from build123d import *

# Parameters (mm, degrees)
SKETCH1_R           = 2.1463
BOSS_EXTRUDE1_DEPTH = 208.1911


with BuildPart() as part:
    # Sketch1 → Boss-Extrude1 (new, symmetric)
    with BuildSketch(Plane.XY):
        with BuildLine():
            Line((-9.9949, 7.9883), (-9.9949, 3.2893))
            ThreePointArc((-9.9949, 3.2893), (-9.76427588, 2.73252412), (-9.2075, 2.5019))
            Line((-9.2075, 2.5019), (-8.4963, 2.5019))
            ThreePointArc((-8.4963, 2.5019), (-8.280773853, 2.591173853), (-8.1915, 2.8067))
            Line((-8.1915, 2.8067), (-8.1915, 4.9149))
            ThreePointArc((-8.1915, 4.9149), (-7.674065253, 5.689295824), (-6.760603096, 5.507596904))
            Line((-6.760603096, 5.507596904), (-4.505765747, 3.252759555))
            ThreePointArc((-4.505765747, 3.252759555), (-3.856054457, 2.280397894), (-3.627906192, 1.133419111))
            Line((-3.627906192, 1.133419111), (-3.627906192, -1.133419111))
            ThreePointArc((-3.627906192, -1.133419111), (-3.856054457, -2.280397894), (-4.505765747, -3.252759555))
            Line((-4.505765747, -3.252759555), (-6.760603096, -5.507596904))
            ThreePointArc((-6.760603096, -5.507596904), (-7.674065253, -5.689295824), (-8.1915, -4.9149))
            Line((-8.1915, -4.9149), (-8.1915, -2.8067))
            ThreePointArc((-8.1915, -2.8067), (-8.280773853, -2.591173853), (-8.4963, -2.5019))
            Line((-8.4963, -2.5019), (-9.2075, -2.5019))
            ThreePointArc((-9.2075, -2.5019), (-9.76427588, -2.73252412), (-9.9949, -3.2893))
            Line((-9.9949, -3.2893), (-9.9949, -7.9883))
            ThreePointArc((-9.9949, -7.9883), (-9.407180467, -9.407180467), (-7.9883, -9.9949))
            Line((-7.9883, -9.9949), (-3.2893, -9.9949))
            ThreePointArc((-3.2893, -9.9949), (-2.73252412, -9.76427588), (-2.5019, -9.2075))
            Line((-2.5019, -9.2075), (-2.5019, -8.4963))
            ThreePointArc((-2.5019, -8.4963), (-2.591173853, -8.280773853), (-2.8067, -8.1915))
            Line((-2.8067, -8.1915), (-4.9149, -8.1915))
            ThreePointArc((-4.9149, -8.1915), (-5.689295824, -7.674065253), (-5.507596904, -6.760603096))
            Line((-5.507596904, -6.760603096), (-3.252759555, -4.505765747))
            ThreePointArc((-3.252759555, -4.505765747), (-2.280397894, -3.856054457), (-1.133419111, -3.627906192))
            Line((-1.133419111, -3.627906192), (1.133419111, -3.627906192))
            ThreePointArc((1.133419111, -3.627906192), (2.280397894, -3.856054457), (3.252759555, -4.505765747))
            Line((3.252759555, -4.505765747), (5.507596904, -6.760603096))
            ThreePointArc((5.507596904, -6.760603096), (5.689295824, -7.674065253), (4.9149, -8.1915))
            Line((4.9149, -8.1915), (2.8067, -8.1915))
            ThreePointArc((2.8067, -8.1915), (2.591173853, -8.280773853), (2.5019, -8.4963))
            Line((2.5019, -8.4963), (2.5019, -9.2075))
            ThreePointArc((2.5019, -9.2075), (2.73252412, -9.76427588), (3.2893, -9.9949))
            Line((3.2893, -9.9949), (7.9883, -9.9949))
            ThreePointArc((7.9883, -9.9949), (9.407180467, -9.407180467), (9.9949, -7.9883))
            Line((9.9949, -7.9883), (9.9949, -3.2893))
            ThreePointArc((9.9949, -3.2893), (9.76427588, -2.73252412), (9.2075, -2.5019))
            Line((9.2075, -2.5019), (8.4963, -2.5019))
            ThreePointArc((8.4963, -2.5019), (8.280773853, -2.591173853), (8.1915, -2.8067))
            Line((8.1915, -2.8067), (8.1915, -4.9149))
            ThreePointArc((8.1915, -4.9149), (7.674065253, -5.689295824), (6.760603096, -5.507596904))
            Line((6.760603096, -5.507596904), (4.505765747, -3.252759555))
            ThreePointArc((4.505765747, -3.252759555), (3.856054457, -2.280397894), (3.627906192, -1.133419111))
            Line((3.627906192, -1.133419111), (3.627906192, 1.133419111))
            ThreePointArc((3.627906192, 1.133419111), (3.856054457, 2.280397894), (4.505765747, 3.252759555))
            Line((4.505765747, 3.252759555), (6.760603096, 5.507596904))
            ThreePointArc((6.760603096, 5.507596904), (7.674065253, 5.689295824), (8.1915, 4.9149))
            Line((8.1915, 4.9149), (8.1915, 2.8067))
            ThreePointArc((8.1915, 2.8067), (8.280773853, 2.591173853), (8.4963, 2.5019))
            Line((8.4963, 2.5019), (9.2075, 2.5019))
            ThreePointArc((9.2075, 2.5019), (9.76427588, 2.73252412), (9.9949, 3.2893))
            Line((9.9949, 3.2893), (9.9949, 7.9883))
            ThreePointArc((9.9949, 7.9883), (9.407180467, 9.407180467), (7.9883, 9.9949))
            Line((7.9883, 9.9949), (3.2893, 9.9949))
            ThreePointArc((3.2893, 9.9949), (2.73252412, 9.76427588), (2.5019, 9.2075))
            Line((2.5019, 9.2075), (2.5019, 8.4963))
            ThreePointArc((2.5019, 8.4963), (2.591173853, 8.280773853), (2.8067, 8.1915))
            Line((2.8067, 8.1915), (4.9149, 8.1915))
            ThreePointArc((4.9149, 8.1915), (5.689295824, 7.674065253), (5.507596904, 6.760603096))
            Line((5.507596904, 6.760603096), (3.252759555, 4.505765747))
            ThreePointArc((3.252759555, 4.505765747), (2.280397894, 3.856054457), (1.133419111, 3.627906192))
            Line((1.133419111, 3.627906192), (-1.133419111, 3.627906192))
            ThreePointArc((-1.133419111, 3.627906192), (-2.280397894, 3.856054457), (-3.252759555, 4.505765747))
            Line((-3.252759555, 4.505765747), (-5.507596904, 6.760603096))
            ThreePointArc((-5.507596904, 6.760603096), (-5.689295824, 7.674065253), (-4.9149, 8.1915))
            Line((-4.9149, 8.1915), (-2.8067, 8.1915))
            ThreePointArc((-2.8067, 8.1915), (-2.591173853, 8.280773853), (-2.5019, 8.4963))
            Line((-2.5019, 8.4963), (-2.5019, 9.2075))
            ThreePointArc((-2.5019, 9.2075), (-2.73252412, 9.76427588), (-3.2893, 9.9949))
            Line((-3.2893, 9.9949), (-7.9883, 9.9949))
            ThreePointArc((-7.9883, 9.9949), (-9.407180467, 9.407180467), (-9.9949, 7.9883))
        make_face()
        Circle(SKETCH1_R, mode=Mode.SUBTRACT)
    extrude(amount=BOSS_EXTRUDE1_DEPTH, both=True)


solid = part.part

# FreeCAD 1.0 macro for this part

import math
import FreeCAD as App
import Part
import Sketcher
from FreeCAD import Vector
Q = App.Units.Quantity

doc = App.newDocument("Part")
body = doc.addObject("PartDesign::Body", "Body")

sketch1 = body.newObject("Sketcher::SketchObject", "Sketch")
sketch1.AttachmentSupport = (doc.getObject("XY_Plane"), [""])
sketch1.MapMode = "FlatFace"
sketch1.addGeometry(Part.LineSegment(Vector(-9.99, 7.99, 0), Vector(-9.99, 3.29, 0)), False)
sketch1.addGeometry(Part.ArcOfCircle(Part.Circle(Vector(-9.21, 3.29, 0), Vector(0, 0, 1), 0.79), math.radians(180), math.radians(270)), False)
sketch1.addGeometry(Part.LineSegment(Vector(-9.21, 2.5, 0), Vector(-8.5, 2.5, 0)), False)
sketch1.addGeometry(Part.ArcOfCircle(Part.Circle(Vector(-8.5, 2.81, 0), Vector(0, 0, 1), 0.3), math.radians(-90), math.radians(0)), False)
sketch1.addGeometry(Part.LineSegment(Vector(-8.19, 2.81, 0), Vector(-8.19, 4.91, 0)), False)
sketch1.addGeometry(Part.ArcOfCircle(Part.Circle(Vector(-7.35, 4.91, 0), Vector(0, 0, 1), 0.84), math.radians(45), math.radians(180)), False)
sketch1.addGeometry(Part.LineSegment(Vector(-6.76, 5.51, 0), Vector(-4.51, 3.25, 0)), False)
sketch1.addGeometry(Part.ArcOfCircle(Part.Circle(Vector(-6.63, 1.13, 0), Vector(0, 0, 1), 3), math.radians(0), math.radians(45)), False)
sketch1.addGeometry(Part.LineSegment(Vector(-3.63, 1.13, 0), Vector(-3.63, -1.13, 0)), False)
sketch1.addGeometry(Part.ArcOfCircle(Part.Circle(Vector(-6.63, -1.13, 0), Vector(0, 0, 1), 3), math.radians(-45), math.radians(0)), False)
sketch1.addGeometry(Part.LineSegment(Vector(-4.51, -3.25, 0), Vector(-6.76, -5.51, 0)), False)
sketch1.addGeometry(Part.ArcOfCircle(Part.Circle(Vector(-7.35, -4.91, 0), Vector(0, 0, 1), 0.84), math.radians(180), math.radians(315)), False)
sketch1.addGeometry(Part.LineSegment(Vector(-8.19, -4.91, 0), Vector(-8.19, -2.81, 0)), False)
sketch1.addGeometry(Part.ArcOfCircle(Part.Circle(Vector(-8.5, -2.81, 0), Vector(0, 0, 1), 0.3), math.radians(0), math.radians(90)), False)
sketch1.addGeometry(Part.LineSegment(Vector(-8.5, -2.5, 0), Vector(-9.21, -2.5, 0)), False)
sketch1.addGeometry(Part.ArcOfCircle(Part.Circle(Vector(-9.21, -3.29, 0), Vector(0, 0, 1), 0.79), math.radians(90), math.radians(180)), False)
sketch1.addGeometry(Part.LineSegment(Vector(-9.99, -3.29, 0), Vector(-9.99, -7.99, 0)), False)
sketch1.addGeometry(Part.ArcOfCircle(Part.Circle(Vector(-7.99, -7.99, 0), Vector(0, 0, 1), 2.01), math.radians(180), math.radians(270)), False)
sketch1.addGeometry(Part.LineSegment(Vector(-7.99, -9.99, 0), Vector(-3.29, -9.99, 0)), False)
sketch1.addGeometry(Part.ArcOfCircle(Part.Circle(Vector(-3.29, -9.21, 0), Vector(0, 0, 1), 0.79), math.radians(-90), math.radians(0)), False)
sketch1.addGeometry(Part.LineSegment(Vector(-2.5, -9.21, 0), Vector(-2.5, -8.5, 0)), False)
sketch1.addGeometry(Part.ArcOfCircle(Part.Circle(Vector(-2.81, -8.5, 0), Vector(0, 0, 1), 0.3), math.radians(0), math.radians(90)), False)
sketch1.addGeometry(Part.LineSegment(Vector(-2.81, -8.19, 0), Vector(-4.91, -8.19, 0)), False)
sketch1.addGeometry(Part.ArcOfCircle(Part.Circle(Vector(-4.91, -7.35, 0), Vector(0, 0, 1), 0.84), math.radians(135), math.radians(270)), False)
sketch1.addGeometry(Part.LineSegment(Vector(-5.51, -6.76, 0), Vector(-3.25, -4.51, 0)), False)
sketch1.addGeometry(Part.ArcOfCircle(Part.Circle(Vector(-1.13, -6.63, 0), Vector(0, 0, 1), 3), math.radians(90), math.radians(135)), False)
sketch1.addGeometry(Part.LineSegment(Vector(-1.13, -3.63, 0), Vector(1.13, -3.63, 0)), False)
sketch1.addGeometry(Part.ArcOfCircle(Part.Circle(Vector(1.13, -6.63, 0), Vector(0, 0, 1), 3), math.radians(45), math.radians(90)), False)
sketch1.addGeometry(Part.LineSegment(Vector(3.25, -4.51, 0), Vector(5.51, -6.76, 0)), False)
sketch1.addGeometry(Part.ArcOfCircle(Part.Circle(Vector(4.91, -7.35, 0), Vector(0, 0, 1), 0.84), math.radians(-90), math.radians(45)), False)
sketch1.addGeometry(Part.LineSegment(Vector(4.91, -8.19, 0), Vector(2.81, -8.19, 0)), False)
sketch1.addGeometry(Part.ArcOfCircle(Part.Circle(Vector(2.81, -8.5, 0), Vector(0, 0, 1), 0.3), math.radians(90), math.radians(180)), False)
sketch1.addGeometry(Part.LineSegment(Vector(2.5, -8.5, 0), Vector(2.5, -9.21, 0)), False)
sketch1.addGeometry(Part.ArcOfCircle(Part.Circle(Vector(3.29, -9.21, 0), Vector(0, 0, 1), 0.79), math.radians(180), math.radians(270)), False)
sketch1.addGeometry(Part.LineSegment(Vector(3.29, -9.99, 0), Vector(7.99, -9.99, 0)), False)
sketch1.addGeometry(Part.ArcOfCircle(Part.Circle(Vector(7.99, -7.99, 0), Vector(0, 0, 1), 2.01), math.radians(-90), math.radians(0)), False)
sketch1.addGeometry(Part.LineSegment(Vector(9.99, -7.99, 0), Vector(9.99, -3.29, 0)), False)
sketch1.addGeometry(Part.ArcOfCircle(Part.Circle(Vector(9.21, -3.29, 0), Vector(0, 0, 1), 0.79), math.radians(0), math.radians(90)), False)
sketch1.addGeometry(Part.LineSegment(Vector(9.21, -2.5, 0), Vector(8.5, -2.5, 0)), False)
sketch1.addGeometry(Part.ArcOfCircle(Part.Circle(Vector(8.5, -2.81, 0), Vector(0, 0, 1), 0.3), math.radians(90), math.radians(180)), False)
sketch1.addGeometry(Part.LineSegment(Vector(8.19, -2.81, 0), Vector(8.19, -4.91, 0)), False)
sketch1.addGeometry(Part.ArcOfCircle(Part.Circle(Vector(7.35, -4.91, 0), Vector(0, 0, 1), 0.84), math.radians(-135), math.radians(0)), False)
sketch1.addGeometry(Part.LineSegment(Vector(6.76, -5.51, 0), Vector(4.51, -3.25, 0)), False)
sketch1.addGeometry(Part.ArcOfCircle(Part.Circle(Vector(6.63, -1.13, 0), Vector(0, 0, 1), 3), math.radians(180), math.radians(225)), False)
sketch1.addGeometry(Part.LineSegment(Vector(3.63, -1.13, 0), Vector(3.63, 1.13, 0)), False)
sketch1.addGeometry(Part.ArcOfCircle(Part.Circle(Vector(6.63, 1.13, 0), Vector(0, 0, 1), 3), math.radians(135), math.radians(180)), False)
sketch1.addGeometry(Part.LineSegment(Vector(4.51, 3.25, 0), Vector(6.76, 5.51, 0)), False)
sketch1.addGeometry(Part.ArcOfCircle(Part.Circle(Vector(7.35, 4.91, 0), Vector(0, 0, 1), 0.84), math.radians(0), math.radians(135)), False)
sketch1.addGeometry(Part.LineSegment(Vector(8.19, 4.91, 0), Vector(8.19, 2.81, 0)), False)
sketch1.addGeometry(Part.ArcOfCircle(Part.Circle(Vector(8.5, 2.81, 0), Vector(0, 0, 1), 0.3), math.radians(180), math.radians(270)), False)
sketch1.addGeometry(Part.LineSegment(Vector(8.5, 2.5, 0), Vector(9.21, 2.5, 0)), False)
sketch1.addGeometry(Part.ArcOfCircle(Part.Circle(Vector(9.21, 3.29, 0), Vector(0, 0, 1), 0.79), math.radians(-90), math.radians(0)), False)
sketch1.addGeometry(Part.LineSegment(Vector(9.99, 3.29, 0), Vector(9.99, 7.99, 0)), False)
sketch1.addGeometry(Part.ArcOfCircle(Part.Circle(Vector(7.99, 7.99, 0), Vector(0, 0, 1), 2.01), math.radians(0), math.radians(90)), False)
sketch1.addGeometry(Part.LineSegment(Vector(7.99, 9.99, 0), Vector(3.29, 9.99, 0)), False)
sketch1.addGeometry(Part.ArcOfCircle(Part.Circle(Vector(3.29, 9.21, 0), Vector(0, 0, 1), 0.79), math.radians(90), math.radians(180)), False)
sketch1.addGeometry(Part.LineSegment(Vector(2.5, 9.21, 0), Vector(2.5, 8.5, 0)), False)
sketch1.addGeometry(Part.ArcOfCircle(Part.Circle(Vector(2.81, 8.5, 0), Vector(0, 0, 1), 0.3), math.radians(180), math.radians(270)), False)
sketch1.addGeometry(Part.LineSegment(Vector(2.81, 8.19, 0), Vector(4.91, 8.19, 0)), False)
sketch1.addGeometry(Part.ArcOfCircle(Part.Circle(Vector(4.91, 7.35, 0), Vector(0, 0, 1), 0.84), math.radians(-45), math.radians(90)), False)
sketch1.addGeometry(Part.LineSegment(Vector(5.51, 6.76, 0), Vector(3.25, 4.51, 0)), False)
sketch1.addGeometry(Part.ArcOfCircle(Part.Circle(Vector(1.13, 6.63, 0), Vector(0, 0, 1), 3), math.radians(-90), math.radians(-45)), False)
sketch1.addGeometry(Part.LineSegment(Vector(1.13, 3.63, 0), Vector(-1.13, 3.63, 0)), False)
sketch1.addGeometry(Part.ArcOfCircle(Part.Circle(Vector(-1.13, 6.63, 0), Vector(0, 0, 1), 3), math.radians(-135), math.radians(-90)), False)
sketch1.addGeometry(Part.LineSegment(Vector(-3.25, 4.51, 0), Vector(-5.51, 6.76, 0)), False)
sketch1.addGeometry(Part.ArcOfCircle(Part.Circle(Vector(-4.91, 7.35, 0), Vector(0, 0, 1), 0.84), math.radians(90), math.radians(225)), False)
sketch1.addGeometry(Part.LineSegment(Vector(-4.91, 8.19, 0), Vector(-2.81, 8.19, 0)), False)
sketch1.addGeometry(Part.ArcOfCircle(Part.Circle(Vector(-2.81, 8.5, 0), Vector(0, 0, 1), 0.3), math.radians(-90), math.radians(0)), False)
sketch1.addGeometry(Part.LineSegment(Vector(-2.5, 8.5, 0), Vector(-2.5, 9.21, 0)), False)
sketch1.addGeometry(Part.ArcOfCircle(Part.Circle(Vector(-3.29, 9.21, 0), Vector(0, 0, 1), 0.79), math.radians(0), math.radians(90)), False)
sketch1.addGeometry(Part.LineSegment(Vector(-3.29, 9.99, 0), Vector(-7.99, 9.99, 0)), False)
sketch1.addGeometry(Part.ArcOfCircle(Part.Circle(Vector(-7.99, 7.99, 0), Vector(0, 0, 1), 2.01), math.radians(90), math.radians(180)), False)
sketch1.addGeometry(Part.Circle(Vector(0, 0, 0), Vector(0, 0, 1), 2.15), False)
sketch1.addConstraint(Sketcher.Constraint("Tangent", 0, 2, 1, 1))
sketch1.addConstraint(Sketcher.Constraint("Tangent", 1, 2, 2, 1))
sketch1.addConstraint(Sketcher.Constraint("Tangent", 2, 2, 3, 1))
sketch1.addConstraint(Sketcher.Constraint("Tangent", 3, 2, 4, 1))
sketch1.addConstraint(Sketcher.Constraint("Tangent", 4, 2, 5, 2))
sketch1.addConstraint(Sketcher.Constraint("Tangent", 5, 1, 6, 1))
sketch1.addConstraint(Sketcher.Constraint("Tangent", 6, 2, 7, 2))
sketch1.addConstraint(Sketcher.Constraint("Tangent", 7, 1, 8, 1))
sketch1.addConstraint(Sketcher.Constraint("Tangent", 8, 2, 9, 2))
sketch1.addConstraint(Sketcher.Constraint("Tangent", 9, 1, 10, 1))
sketch1.addConstraint(Sketcher.Constraint("Tangent", 10, 2, 11, 2))
sketch1.addConstraint(Sketcher.Constraint("Tangent", 11, 1, 12, 1))
sketch1.addConstraint(Sketcher.Constraint("Tangent", 12, 2, 13, 1))
sketch1.addConstraint(Sketcher.Constraint("Tangent", 13, 2, 14, 1))
sketch1.addConstraint(Sketcher.Constraint("Tangent", 14, 2, 15, 1))
sketch1.addConstraint(Sketcher.Constraint("Tangent", 15, 2, 16, 1))
sketch1.addConstraint(Sketcher.Constraint("Tangent", 16, 2, 17, 1))
sketch1.addConstraint(Sketcher.Constraint("Tangent", 17, 2, 18, 1))
sketch1.addConstraint(Sketcher.Constraint("Tangent", 18, 2, 19, 1))
sketch1.addConstraint(Sketcher.Constraint("Tangent", 19, 2, 20, 1))
sketch1.addConstraint(Sketcher.Constraint("Tangent", 20, 2, 21, 1))
sketch1.addConstraint(Sketcher.Constraint("Tangent", 21, 2, 22, 1))
sketch1.addConstraint(Sketcher.Constraint("Tangent", 22, 2, 23, 2))
sketch1.addConstraint(Sketcher.Constraint("Tangent", 23, 1, 24, 1))
sketch1.addConstraint(Sketcher.Constraint("Tangent", 24, 2, 25, 2))
sketch1.addConstraint(Sketcher.Constraint("Tangent", 25, 1, 26, 1))
sketch1.addConstraint(Sketcher.Constraint("Tangent", 26, 2, 27, 2))
sketch1.addConstraint(Sketcher.Constraint("Tangent", 27, 1, 28, 1))
sketch1.addConstraint(Sketcher.Constraint("Tangent", 28, 2, 29, 2))
sketch1.addConstraint(Sketcher.Constraint("Tangent", 29, 1, 30, 1))
sketch1.addConstraint(Sketcher.Constraint("Tangent", 30, 2, 31, 1))
sketch1.addConstraint(Sketcher.Constraint("Tangent", 31, 2, 32, 1))
sketch1.addConstraint(Sketcher.Constraint("Tangent", 32, 2, 33, 1))
sketch1.addConstraint(Sketcher.Constraint("Tangent", 33, 2, 34, 1))
sketch1.addConstraint(Sketcher.Constraint("Tangent", 34, 2, 35, 1))
sketch1.addConstraint(Sketcher.Constraint("Tangent", 35, 2, 36, 1))
sketch1.addConstraint(Sketcher.Constraint("Tangent", 36, 2, 37, 1))
sketch1.addConstraint(Sketcher.Constraint("Tangent", 37, 2, 38, 1))
sketch1.addConstraint(Sketcher.Constraint("Tangent", 38, 2, 39, 1))
sketch1.addConstraint(Sketcher.Constraint("Tangent", 39, 2, 40, 1))
sketch1.addConstraint(Sketcher.Constraint("Tangent", 40, 2, 41, 2))
sketch1.addConstraint(Sketcher.Constraint("Tangent", 41, 1, 42, 1))
sketch1.addConstraint(Sketcher.Constraint("Tangent", 42, 2, 43, 2))
sketch1.addConstraint(Sketcher.Constraint("Tangent", 43, 1, 44, 1))
sketch1.addConstraint(Sketcher.Constraint("Tangent", 44, 2, 45, 2))
sketch1.addConstraint(Sketcher.Constraint("Tangent", 45, 1, 46, 1))
sketch1.addConstraint(Sketcher.Constraint("Tangent", 46, 2, 47, 2))
sketch1.addConstraint(Sketcher.Constraint("Tangent", 47, 1, 48, 1))
sketch1.addConstraint(Sketcher.Constraint("Tangent", 48, 2, 49, 1))
sketch1.addConstraint(Sketcher.Constraint("Tangent", 49, 2, 50, 1))
sketch1.addConstraint(Sketcher.Constraint("Tangent", 50, 2, 51, 1))
sketch1.addConstraint(Sketcher.Constraint("Tangent", 51, 2, 52, 1))
sketch1.addConstraint(Sketcher.Constraint("Tangent", 52, 2, 53, 1))
sketch1.addConstraint(Sketcher.Constraint("Tangent", 53, 2, 54, 1))
sketch1.addConstraint(Sketcher.Constraint("Tangent", 54, 2, 55, 1))
sketch1.addConstraint(Sketcher.Constraint("Tangent", 55, 2, 56, 1))
sketch1.addConstraint(Sketcher.Constraint("Tangent", 56, 2, 57, 1))
sketch1.addConstraint(Sketcher.Constraint("Tangent", 57, 2, 58, 1))
sketch1.addConstraint(Sketcher.Constraint("Tangent", 58, 2, 59, 2))
sketch1.addConstraint(Sketcher.Constraint("Tangent", 59, 1, 60, 1))
sketch1.addConstraint(Sketcher.Constraint("Tangent", 60, 2, 61, 2))
sketch1.addConstraint(Sketcher.Constraint("Tangent", 61, 1, 62, 1))
sketch1.addConstraint(Sketcher.Constraint("Tangent", 62, 2, 63, 2))
sketch1.addConstraint(Sketcher.Constraint("Tangent", 63, 1, 64, 1))
sketch1.addConstraint(Sketcher.Constraint("Tangent", 64, 2, 65, 2))
sketch1.addConstraint(Sketcher.Constraint("Tangent", 65, 1, 66, 1))
sketch1.addConstraint(Sketcher.Constraint("Tangent", 66, 2, 67, 1))
sketch1.addConstraint(Sketcher.Constraint("Tangent", 67, 2, 68, 1))
sketch1.addConstraint(Sketcher.Constraint("Tangent", 68, 2, 69, 1))
sketch1.addConstraint(Sketcher.Constraint("Tangent", 69, 2, 70, 1))
sketch1.addConstraint(Sketcher.Constraint("Tangent", 70, 2, 71, 1))
sketch1.addConstraint(Sketcher.Constraint("Tangent", 71, 2, 0, 1))
sketch1.addConstraint(Sketcher.Constraint("Vertical", 0))
sketch1.addConstraint(Sketcher.Constraint("Horizontal", 2))
sketch1.addConstraint(Sketcher.Constraint("Vertical", 4))
sketch1.addConstraint(Sketcher.Constraint("Vertical", 8))
sketch1.addConstraint(Sketcher.Constraint("Vertical", 12))
sketch1.addConstraint(Sketcher.Constraint("Horizontal", 14))
sketch1.addConstraint(Sketcher.Constraint("Vertical", 16))
sketch1.addConstraint(Sketcher.Constraint("Horizontal", 18))
sketch1.addConstraint(Sketcher.Constraint("Vertical", 20))
sketch1.addConstraint(Sketcher.Constraint("Horizontal", 22))
sketch1.addConstraint(Sketcher.Constraint("Horizontal", 26))
sketch1.addConstraint(Sketcher.Constraint("Horizontal", 30))
sketch1.addConstraint(Sketcher.Constraint("Vertical", 32))
sketch1.addConstraint(Sketcher.Constraint("Horizontal", 34))
sketch1.addConstraint(Sketcher.Constraint("Vertical", 36))
sketch1.addConstraint(Sketcher.Constraint("Horizontal", 38))
sketch1.addConstraint(Sketcher.Constraint("Vertical", 40))
sketch1.addConstraint(Sketcher.Constraint("Vertical", 44))
sketch1.addConstraint(Sketcher.Constraint("Vertical", 48))
sketch1.addConstraint(Sketcher.Constraint("Horizontal", 50))
sketch1.addConstraint(Sketcher.Constraint("Vertical", 52))
sketch1.addConstraint(Sketcher.Constraint("Horizontal", 54))
sketch1.addConstraint(Sketcher.Constraint("Vertical", 56))
sketch1.addConstraint(Sketcher.Constraint("Horizontal", 58))
sketch1.addConstraint(Sketcher.Constraint("Horizontal", 62))
sketch1.addConstraint(Sketcher.Constraint("Horizontal", 66))
sketch1.addConstraint(Sketcher.Constraint("Vertical", 68))
sketch1.addConstraint(Sketcher.Constraint("Horizontal", 70))
sketch1.addConstraint(Sketcher.Constraint("Coincident", 72, 3, -1, 1))
sketch1.addConstraint(Sketcher.Constraint("Equal", 7, 9))
sketch1.addConstraint(Sketcher.Constraint("Equal", 5, 11))
sketch1.addConstraint(Sketcher.Constraint("Equal", 3, 13))
sketch1.addConstraint(Sketcher.Constraint("Equal", 1, 15))
sketch1.addConstraint(Sketcher.Constraint("Equal", 15, 19))
sketch1.addConstraint(Sketcher.Constraint("Equal", 13, 21))
sketch1.addConstraint(Sketcher.Constraint("Equal", 11, 23))
sketch1.addConstraint(Sketcher.Constraint("Equal", 9, 25))
sketch1.addConstraint(Sketcher.Constraint("Equal", 25, 27))
sketch1.addConstraint(Sketcher.Constraint("Equal", 23, 29))
sketch1.addConstraint(Sketcher.Constraint("Equal", 21, 31))
sketch1.addConstraint(Sketcher.Constraint("Equal", 19, 33))
sketch1.addConstraint(Sketcher.Constraint("Equal", 17, 35))
sketch1.addConstraint(Sketcher.Constraint("Equal", 33, 37))
sketch1.addConstraint(Sketcher.Constraint("Equal", 31, 39))
sketch1.addConstraint(Sketcher.Constraint("Equal", 29, 41))
sketch1.addConstraint(Sketcher.Constraint("Equal", 27, 43))
sketch1.addConstraint(Sketcher.Constraint("Equal", 43, 45))
sketch1.addConstraint(Sketcher.Constraint("Equal", 41, 47))
sketch1.addConstraint(Sketcher.Constraint("Equal", 39, 49))
sketch1.addConstraint(Sketcher.Constraint("Equal", 37, 51))
sketch1.addConstraint(Sketcher.Constraint("Equal", 35, 53))
sketch1.addConstraint(Sketcher.Constraint("Equal", 51, 55))
sketch1.addConstraint(Sketcher.Constraint("Equal", 49, 57))
sketch1.addConstraint(Sketcher.Constraint("Equal", 47, 59))
sketch1.addConstraint(Sketcher.Constraint("Equal", 45, 61))
sketch1.addConstraint(Sketcher.Constraint("Equal", 61, 63))
sketch1.addConstraint(Sketcher.Constraint("Equal", 59, 65))
sketch1.addConstraint(Sketcher.Constraint("Equal", 57, 67))
sketch1.addConstraint(Sketcher.Constraint("Equal", 55, 69))
sketch1.addConstraint(Sketcher.Constraint("Equal", 53, 71))
sketch1.addConstraint(Sketcher.Constraint("Symmetric", 1, 3, 37, 3, -1, 1))
sketch1.addConstraint(Sketcher.Constraint("Symmetric", 5, 3, 41, 3, -1, 1))
sketch1.addConstraint(Sketcher.Constraint("Symmetric", 7, 3, 43, 3, -1, 1))
sketch1.addConstraint(Sketcher.Constraint("Symmetric", 11, 3, 47, 3, -1, 1))
sketch1.addConstraint(Sketcher.Constraint("Symmetric", 15, 3, 51, 3, -1, 1))
sketch1.addConstraint(Sketcher.Constraint("Symmetric", 19, 3, 55, 3, -1, 1))
sketch1.addConstraint(Sketcher.Constraint("Symmetric", 23, 3, 59, 3, -1, 1))
sketch1.addConstraint(Sketcher.Constraint("Symmetric", 25, 3, 61, 3, -1, 1))
sketch1.addConstraint(Sketcher.Constraint("Symmetric", 29, 3, 65, 3, -1, 1))
sketch1.addConstraint(Sketcher.Constraint("Symmetric", 33, 3, 69, 3, -1, 1))
sketch1.addConstraint(Sketcher.Constraint("Symmetric", 23, 3, 29, 3, -2))
sketch1.addConstraint(Sketcher.Constraint("Symmetric", 19, 3, 33, 3, -2))
sketch1.addConstraint(Sketcher.Constraint("Symmetric", 15, 3, 37, 3, -2))
sketch1.addConstraint(Sketcher.Constraint("Symmetric", 11, 3, 41, 3, -2))
sketch1.addConstraint(Sketcher.Constraint("Perpendicular", 6, 10))
sketch1.addConstraint(Sketcher.Constraint("Parallel", 10, 24))
sketch1.addConstraint(Sketcher.Constraint("Perpendicular", 24, 28))
sketch1.addConstraint(Sketcher.Constraint("Perpendicular", 42, 46))
sketch1.addConstraint(Sketcher.Constraint("Perpendicular", 60, 64))
sketch1.addConstraint(Sketcher.Constraint("Horizontal", 9, 3, 43, 3))
sketch1.addConstraint(Sketcher.Constraint("Equal", 70, 0))
sketch1.addConstraint(Sketcher.Constraint("Equal", 66, 4))
sketch1.addConstraint(Sketcher.Constraint("Equal", 62, 8))
sketch1.addConstraint(Sketcher.Constraint("Equal", 50, 20))
sketch1.addConstraint(Sketcher.Constraint("Equal", 10, 24))
sketch1.addConstraint(Sketcher.Constraint("Diameter", 72, Q("0.169 in")))
sketch1.addConstraint(Sketcher.Constraint("Radius", 1, Q("0.031 in")))
sketch1.addConstraint(Sketcher.Constraint("Radius", 3, Q("0.012 in")))
sketch1.addConstraint(Sketcher.Constraint("Radius", 5, Q("0.033 in")))
sketch1.addConstraint(Sketcher.Constraint("Radius", 7, Q("0.118 in")))
sketch1.addConstraint(Sketcher.Constraint("Radius", 17, Q("0.079 in")))
sketch1.addConstraint(Sketcher.Constraint("DistanceX", 2, 1, 2, 2, Q("0.028 in")))
sketch1.addConstraint(Sketcher.Constraint("DistanceX", 18, 1, 18, 2, Q("0.185 in")))
sketch1.addConstraint(Sketcher.Constraint("DistanceX", 22, 2, 22, 1, Q("0.083 in")))
sketch1.addConstraint(Sketcher.Constraint("DistanceX", 1, 3, -1, 1, Q("0.3625 in")))
sketch1.addConstraint(Sketcher.Constraint("DistanceX", 26, 1, 26, 2, 2.266838))
pad1 = body.newObject("PartDesign::Pad", "Pad")
pad1.Profile = sketch1
pad1.Length = Q("16.393 in")
pad1.Midplane = True

doc.recompute()
